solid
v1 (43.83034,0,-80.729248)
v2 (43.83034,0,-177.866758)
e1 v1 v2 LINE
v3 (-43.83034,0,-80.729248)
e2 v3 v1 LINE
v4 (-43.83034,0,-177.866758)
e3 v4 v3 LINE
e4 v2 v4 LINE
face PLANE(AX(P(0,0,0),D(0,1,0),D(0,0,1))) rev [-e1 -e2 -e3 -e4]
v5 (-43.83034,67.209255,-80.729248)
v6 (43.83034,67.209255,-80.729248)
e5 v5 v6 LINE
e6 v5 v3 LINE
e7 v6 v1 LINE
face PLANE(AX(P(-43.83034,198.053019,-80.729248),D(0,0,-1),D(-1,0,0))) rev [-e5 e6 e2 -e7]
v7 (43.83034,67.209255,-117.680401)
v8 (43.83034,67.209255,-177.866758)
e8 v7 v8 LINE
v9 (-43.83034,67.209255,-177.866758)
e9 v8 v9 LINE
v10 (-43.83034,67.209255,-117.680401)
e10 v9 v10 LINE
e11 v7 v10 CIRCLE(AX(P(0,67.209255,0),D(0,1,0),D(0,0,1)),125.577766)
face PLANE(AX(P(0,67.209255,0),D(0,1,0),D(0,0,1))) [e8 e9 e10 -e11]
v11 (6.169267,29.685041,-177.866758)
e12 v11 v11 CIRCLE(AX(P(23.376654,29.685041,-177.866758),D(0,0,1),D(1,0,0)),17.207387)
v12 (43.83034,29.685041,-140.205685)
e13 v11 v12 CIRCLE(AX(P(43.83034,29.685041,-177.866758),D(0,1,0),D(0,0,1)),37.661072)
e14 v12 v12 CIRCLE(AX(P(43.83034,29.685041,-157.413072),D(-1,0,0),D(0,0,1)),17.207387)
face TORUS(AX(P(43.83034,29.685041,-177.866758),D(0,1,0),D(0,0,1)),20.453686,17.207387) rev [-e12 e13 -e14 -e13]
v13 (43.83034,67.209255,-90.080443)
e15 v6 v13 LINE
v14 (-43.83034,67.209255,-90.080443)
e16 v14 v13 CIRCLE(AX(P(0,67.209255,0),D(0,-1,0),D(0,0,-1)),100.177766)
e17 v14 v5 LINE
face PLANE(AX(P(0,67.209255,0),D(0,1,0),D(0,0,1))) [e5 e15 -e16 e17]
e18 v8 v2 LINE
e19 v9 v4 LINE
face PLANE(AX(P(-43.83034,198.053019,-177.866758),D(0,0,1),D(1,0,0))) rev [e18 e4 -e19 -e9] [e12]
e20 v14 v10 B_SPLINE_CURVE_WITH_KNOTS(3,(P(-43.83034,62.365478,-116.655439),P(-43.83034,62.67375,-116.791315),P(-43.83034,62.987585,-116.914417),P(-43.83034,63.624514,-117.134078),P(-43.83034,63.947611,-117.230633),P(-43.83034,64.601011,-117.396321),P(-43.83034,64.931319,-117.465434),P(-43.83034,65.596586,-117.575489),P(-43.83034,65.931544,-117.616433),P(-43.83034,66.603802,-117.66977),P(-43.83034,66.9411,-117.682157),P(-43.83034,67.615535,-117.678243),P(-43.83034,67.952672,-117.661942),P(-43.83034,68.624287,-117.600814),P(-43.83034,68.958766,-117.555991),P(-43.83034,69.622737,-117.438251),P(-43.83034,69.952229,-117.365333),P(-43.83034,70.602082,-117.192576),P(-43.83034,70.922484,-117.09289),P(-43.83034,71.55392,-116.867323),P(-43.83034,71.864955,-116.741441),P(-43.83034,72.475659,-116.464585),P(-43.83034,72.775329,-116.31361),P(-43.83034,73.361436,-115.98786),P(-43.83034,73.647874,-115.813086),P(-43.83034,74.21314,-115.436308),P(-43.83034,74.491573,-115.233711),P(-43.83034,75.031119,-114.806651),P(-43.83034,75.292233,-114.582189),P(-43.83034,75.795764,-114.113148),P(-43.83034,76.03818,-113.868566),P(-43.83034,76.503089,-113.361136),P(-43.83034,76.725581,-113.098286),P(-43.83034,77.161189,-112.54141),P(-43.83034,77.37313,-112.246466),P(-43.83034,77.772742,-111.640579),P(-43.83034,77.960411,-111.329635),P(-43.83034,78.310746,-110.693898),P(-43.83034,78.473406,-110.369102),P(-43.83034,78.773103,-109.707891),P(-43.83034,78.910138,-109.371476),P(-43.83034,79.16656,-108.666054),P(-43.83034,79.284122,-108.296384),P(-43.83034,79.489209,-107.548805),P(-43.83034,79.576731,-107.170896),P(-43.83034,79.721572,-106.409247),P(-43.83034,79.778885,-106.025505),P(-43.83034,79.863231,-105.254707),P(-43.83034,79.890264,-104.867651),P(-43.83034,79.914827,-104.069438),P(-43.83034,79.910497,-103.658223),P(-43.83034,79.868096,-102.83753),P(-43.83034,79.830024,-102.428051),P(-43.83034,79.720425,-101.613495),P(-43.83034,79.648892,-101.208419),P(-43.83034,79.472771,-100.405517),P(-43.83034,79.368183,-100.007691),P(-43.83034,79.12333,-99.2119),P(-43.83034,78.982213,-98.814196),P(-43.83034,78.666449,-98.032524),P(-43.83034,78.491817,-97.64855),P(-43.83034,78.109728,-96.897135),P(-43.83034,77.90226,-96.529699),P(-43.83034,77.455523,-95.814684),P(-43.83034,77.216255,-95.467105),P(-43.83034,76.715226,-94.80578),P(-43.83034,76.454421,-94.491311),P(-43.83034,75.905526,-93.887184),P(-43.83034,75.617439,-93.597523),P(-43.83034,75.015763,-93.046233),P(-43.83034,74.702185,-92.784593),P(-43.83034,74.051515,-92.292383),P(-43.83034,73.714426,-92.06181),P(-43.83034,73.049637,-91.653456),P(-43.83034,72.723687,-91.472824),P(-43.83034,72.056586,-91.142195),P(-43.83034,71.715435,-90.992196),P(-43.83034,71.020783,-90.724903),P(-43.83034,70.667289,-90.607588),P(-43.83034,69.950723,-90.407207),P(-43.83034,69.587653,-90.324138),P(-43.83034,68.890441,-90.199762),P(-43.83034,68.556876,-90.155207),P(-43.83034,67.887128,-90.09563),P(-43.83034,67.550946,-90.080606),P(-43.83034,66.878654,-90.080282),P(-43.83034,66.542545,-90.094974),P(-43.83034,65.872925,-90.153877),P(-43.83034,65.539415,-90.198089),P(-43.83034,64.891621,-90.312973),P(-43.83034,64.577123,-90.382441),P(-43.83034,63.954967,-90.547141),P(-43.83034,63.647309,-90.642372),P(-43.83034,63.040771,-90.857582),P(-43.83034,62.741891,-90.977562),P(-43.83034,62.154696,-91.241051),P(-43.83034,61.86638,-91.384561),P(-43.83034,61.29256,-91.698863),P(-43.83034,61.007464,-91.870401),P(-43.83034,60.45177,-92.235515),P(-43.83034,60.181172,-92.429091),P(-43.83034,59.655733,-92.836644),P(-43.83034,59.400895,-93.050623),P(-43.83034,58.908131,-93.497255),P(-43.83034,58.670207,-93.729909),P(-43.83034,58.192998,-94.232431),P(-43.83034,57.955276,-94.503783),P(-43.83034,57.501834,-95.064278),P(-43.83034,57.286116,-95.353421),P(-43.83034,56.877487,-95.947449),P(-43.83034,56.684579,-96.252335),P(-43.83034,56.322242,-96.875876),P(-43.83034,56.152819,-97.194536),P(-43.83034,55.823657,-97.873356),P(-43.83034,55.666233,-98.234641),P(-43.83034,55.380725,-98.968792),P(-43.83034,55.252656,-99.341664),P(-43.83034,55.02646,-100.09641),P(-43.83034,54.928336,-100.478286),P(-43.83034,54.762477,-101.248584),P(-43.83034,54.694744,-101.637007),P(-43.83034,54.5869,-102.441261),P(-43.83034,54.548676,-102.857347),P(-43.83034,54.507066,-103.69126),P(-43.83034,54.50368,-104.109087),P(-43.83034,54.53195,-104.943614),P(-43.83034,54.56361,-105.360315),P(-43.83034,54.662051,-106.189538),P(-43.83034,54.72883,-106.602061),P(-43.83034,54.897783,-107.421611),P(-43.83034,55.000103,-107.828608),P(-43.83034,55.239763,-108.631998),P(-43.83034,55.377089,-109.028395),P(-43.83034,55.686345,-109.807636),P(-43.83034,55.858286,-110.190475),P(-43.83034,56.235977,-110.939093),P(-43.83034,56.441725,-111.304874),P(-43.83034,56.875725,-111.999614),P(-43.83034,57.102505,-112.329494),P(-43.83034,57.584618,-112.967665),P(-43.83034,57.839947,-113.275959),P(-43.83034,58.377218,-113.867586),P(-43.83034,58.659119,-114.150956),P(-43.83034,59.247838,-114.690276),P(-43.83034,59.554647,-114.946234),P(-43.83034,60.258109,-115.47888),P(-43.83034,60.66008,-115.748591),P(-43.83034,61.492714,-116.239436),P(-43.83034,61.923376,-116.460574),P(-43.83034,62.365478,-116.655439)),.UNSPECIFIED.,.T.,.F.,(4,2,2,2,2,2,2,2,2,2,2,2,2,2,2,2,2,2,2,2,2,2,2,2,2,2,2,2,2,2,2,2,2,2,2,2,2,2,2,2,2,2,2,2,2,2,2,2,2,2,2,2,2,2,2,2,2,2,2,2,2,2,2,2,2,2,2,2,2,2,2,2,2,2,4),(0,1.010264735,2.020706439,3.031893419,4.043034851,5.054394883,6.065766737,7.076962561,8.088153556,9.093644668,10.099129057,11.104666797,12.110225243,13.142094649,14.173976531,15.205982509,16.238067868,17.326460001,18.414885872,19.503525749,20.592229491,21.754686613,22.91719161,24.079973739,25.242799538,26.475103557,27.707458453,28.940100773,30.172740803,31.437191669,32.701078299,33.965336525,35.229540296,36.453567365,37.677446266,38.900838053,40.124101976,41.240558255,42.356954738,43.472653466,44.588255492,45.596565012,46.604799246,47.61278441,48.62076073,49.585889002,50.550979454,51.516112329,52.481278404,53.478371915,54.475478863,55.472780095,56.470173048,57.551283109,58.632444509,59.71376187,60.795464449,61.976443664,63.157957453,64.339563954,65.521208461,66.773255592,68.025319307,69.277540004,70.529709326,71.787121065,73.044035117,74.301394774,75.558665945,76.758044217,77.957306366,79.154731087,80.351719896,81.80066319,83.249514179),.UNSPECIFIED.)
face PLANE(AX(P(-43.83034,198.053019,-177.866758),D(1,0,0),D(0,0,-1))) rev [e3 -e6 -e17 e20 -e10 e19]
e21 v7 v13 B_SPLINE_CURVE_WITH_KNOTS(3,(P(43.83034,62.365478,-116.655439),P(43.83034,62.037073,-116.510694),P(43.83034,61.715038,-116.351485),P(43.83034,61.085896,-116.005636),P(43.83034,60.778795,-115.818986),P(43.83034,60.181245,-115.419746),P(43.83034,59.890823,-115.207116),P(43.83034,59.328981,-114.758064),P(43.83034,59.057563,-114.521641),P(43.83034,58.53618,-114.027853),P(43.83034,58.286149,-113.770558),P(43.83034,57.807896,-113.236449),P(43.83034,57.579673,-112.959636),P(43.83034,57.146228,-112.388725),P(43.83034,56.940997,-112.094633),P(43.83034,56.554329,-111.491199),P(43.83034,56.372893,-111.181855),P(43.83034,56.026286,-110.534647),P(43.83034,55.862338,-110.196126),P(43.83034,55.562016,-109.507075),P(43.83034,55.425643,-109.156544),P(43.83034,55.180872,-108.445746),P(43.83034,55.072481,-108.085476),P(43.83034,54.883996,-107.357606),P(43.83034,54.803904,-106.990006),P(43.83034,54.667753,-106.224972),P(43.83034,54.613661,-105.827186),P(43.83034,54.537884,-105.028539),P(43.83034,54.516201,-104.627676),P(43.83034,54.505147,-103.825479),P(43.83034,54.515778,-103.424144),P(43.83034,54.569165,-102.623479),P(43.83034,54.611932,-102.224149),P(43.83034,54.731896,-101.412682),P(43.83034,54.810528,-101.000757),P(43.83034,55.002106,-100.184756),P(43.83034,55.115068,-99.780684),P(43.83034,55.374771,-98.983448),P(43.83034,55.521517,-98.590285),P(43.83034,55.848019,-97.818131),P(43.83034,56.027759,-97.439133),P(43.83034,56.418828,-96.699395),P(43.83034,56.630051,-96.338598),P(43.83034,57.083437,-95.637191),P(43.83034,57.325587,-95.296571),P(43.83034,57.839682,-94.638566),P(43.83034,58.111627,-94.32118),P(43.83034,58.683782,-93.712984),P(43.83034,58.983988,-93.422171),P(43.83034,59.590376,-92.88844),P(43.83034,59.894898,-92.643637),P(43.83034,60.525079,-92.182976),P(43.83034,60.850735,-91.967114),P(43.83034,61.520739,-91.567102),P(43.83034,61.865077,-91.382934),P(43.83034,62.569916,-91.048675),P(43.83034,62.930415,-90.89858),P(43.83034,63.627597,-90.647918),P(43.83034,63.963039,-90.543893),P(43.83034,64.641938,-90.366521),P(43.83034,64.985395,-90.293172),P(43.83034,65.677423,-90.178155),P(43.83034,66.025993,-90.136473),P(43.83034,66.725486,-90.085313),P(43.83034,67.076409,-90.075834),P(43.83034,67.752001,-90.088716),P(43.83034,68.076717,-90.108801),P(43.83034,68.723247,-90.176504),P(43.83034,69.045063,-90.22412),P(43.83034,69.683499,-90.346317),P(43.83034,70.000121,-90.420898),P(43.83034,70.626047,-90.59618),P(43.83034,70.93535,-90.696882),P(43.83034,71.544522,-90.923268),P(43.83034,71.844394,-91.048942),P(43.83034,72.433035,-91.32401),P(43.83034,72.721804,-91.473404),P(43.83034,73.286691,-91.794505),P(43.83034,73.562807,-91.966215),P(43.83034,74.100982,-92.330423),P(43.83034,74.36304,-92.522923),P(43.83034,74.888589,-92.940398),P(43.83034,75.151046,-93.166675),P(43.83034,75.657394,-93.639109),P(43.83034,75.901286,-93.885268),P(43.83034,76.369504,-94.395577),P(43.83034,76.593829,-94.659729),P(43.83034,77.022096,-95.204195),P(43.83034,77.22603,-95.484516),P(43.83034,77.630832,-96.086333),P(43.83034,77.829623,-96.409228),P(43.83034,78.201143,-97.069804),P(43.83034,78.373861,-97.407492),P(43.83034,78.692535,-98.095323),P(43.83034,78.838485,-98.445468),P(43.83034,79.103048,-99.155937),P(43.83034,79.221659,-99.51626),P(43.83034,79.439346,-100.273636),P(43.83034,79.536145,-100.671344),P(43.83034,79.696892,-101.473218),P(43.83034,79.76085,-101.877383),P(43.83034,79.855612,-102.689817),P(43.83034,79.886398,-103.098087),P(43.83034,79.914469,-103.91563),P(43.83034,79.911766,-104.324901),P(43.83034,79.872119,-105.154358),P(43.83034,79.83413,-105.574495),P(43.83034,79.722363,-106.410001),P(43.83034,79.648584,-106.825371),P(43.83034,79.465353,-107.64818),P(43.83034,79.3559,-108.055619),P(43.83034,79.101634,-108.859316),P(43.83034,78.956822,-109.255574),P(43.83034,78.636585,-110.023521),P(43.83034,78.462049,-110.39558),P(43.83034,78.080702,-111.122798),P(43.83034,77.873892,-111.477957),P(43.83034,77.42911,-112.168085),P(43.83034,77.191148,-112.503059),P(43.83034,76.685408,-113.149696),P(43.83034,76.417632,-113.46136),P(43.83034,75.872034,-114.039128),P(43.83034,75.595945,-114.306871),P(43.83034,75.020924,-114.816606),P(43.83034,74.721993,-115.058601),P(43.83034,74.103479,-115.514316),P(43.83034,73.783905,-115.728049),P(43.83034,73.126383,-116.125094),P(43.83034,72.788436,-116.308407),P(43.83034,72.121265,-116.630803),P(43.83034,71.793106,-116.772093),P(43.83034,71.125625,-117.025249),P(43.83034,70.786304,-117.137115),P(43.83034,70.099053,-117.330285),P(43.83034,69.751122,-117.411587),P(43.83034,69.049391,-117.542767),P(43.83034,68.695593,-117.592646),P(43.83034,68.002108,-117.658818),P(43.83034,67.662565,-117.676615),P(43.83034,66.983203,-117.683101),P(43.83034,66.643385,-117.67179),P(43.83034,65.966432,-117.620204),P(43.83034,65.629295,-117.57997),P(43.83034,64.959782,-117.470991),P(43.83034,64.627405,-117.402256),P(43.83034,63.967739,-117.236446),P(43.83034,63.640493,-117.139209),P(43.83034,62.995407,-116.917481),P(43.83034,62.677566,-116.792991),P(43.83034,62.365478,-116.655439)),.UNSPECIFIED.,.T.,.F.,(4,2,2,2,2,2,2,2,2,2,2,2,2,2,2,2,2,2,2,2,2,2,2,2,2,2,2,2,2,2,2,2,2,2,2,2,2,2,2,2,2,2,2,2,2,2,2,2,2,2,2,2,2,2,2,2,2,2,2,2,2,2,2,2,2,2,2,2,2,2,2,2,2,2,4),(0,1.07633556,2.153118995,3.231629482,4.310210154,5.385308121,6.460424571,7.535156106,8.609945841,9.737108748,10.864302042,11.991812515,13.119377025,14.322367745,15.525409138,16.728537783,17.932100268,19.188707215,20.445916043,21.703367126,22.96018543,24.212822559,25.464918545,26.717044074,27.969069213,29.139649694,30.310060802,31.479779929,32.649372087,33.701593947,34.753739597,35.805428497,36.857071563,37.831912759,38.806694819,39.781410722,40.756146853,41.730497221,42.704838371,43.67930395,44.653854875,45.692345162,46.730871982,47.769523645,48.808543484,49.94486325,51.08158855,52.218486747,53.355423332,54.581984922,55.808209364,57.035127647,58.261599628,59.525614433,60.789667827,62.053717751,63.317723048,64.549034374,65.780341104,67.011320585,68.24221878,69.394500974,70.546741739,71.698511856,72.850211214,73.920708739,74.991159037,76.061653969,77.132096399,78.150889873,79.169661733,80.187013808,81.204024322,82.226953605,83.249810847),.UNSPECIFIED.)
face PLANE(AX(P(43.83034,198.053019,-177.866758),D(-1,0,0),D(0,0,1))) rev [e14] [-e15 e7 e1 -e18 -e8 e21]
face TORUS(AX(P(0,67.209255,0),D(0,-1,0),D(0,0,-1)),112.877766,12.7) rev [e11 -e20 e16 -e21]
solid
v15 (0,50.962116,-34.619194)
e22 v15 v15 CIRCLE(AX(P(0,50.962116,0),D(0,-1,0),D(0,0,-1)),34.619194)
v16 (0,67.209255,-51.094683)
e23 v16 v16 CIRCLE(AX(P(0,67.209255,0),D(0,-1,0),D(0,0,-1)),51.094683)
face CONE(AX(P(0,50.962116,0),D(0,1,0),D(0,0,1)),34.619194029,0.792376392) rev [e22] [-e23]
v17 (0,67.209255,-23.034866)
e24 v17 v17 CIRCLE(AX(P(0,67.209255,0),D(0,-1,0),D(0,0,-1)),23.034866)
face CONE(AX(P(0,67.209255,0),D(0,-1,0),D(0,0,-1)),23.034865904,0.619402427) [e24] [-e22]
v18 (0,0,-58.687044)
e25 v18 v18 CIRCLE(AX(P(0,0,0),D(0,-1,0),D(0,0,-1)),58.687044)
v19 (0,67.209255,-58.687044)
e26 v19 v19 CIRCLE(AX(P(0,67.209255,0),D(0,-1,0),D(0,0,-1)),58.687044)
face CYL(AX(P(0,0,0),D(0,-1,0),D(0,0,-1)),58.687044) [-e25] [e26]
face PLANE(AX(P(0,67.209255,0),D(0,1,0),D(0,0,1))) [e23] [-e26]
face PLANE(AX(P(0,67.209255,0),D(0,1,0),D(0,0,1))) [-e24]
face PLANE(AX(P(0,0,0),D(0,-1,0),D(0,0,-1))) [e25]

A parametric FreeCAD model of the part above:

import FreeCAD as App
import Part
import Sketcher
from FreeCAD import Vector
Q = App.Units.Quantity


def add_polygon(sketch, points):
    """Adds a closed chain of lines whose ends are joined by coincident constraints."""
    first, n = sketch.GeometryCount, len(points)
    for a, b in zip(points, points[1:] + points[:1]):
        sketch.addGeometry(Part.LineSegment(App.Vector(*a, 0), App.Vector(*b, 0)), False)
    for i in range(n):
        sketch.addConstraint(Sketcher.Constraint("Coincident", first + i, 2, first + (i + 1) % n, 1))

doc = App.newDocument("Part")
body = doc.addObject("PartDesign::Body", "Body")

# Sketch on XY plane
sketch1 = body.newObject("Sketcher::SketchObject", "Sketch")
sketch1.AttachmentSupport = (doc.getObject("XY_Plane"), [""])
sketch1.MapMode = "FlatFace"
add_polygon(sketch1, [(0, 67.209255), (0, 0), (58.687044, 0), (58.687044, 67.209255)])  # lines 0-3
sketch1.addConstraint(Sketcher.Constraint("Vertical", 0))
sketch1.addConstraint(Sketcher.Constraint("Horizontal", 1))
sketch1.addConstraint(Sketcher.Constraint("Vertical", 2))
sketch1.addConstraint(Sketcher.Constraint("Horizontal", 3))
sketch1.addConstraint(Sketcher.Constraint("Coincident", 0, 2, -1, 1))
sketch1.addConstraint(Sketcher.Constraint("DistanceX", 1, 1, 1, 2, 58.687044))
sketch1.addConstraint(Sketcher.Constraint("DistanceY", 0, 2, 0, 1, 67.209255))
revolution = body.newObject("PartDesign::Revolution", "Revolution")
revolution.Profile = sketch1
revolution.ReferenceAxis = (sketch1, ["V_Axis"])
revolution.Angle = 360
body2 = doc.addObject("PartDesign::Body", "Body001")

# Sketch on XZ plane
sketch2 = body2.newObject("Sketcher::SketchObject", "Sketch001")
sketch2.AttachmentSupport = (doc.getObject("XZ_Plane001"), [""])
sketch2.MapMode = "FlatFace"
add_polygon(sketch2, [(-43.83034, -177.866758), (-43.83034, -80.729248), (43.83034, -80.729248), (43.83034, -177.866758)])  # lines 0-3
sketch2.addConstraint(Sketcher.Constraint("Vertical", 0))
sketch2.addConstraint(Sketcher.Constraint("Horizontal", 1))
sketch2.addConstraint(Sketcher.Constraint("Vertical", 2))
sketch2.addConstraint(Sketcher.Constraint("Horizontal", 3))
sketch2.addConstraint(Sketcher.Constraint("DistanceX", 1, 1, 1, 2, 87.660679))
sketch2.addConstraint(Sketcher.Constraint("DistanceY", 0, 1, 0, 2, 97.13751))
sketch2.addConstraint(Sketcher.Constraint("DistanceX", 0, 2, -1, 1, 43.83034))
sketch2.addConstraint(Sketcher.Constraint("DistanceY", 0, 2, -1, 1, 80.729248))
pad1 = body2.newObject("PartDesign::Pad", "Pad")
pad1.Profile = sketch2
pad1.Length = 67.209255
pad1.Reversed = True
body3 = doc.addObject("PartDesign::Body", "Body002")
body3.AllowCompound = True

# Sketch on YZ plane
sketch3 = body3.newObject("Sketcher::SketchObject", "Sketch002")
sketch3.AttachmentSupport = (doc.getObject("YZ_Plane002"), [""])
sketch3.MapMode = "FlatFace"
sketch3.addGeometry(Part.Circle(Vector(67.209255, -112.877766, 0), Vector(0, 0, 1), 12.7), False)  # 0
add_polygon(sketch3, [(67.209255, -23.034866), (50.962116, -34.619194), (67.209255, -51.094683)])  # lines 1-3
sketch3.addConstraint(Sketcher.Constraint("Vertical", 3))
sketch3.addConstraint(Sketcher.Constraint("Vertical", 0, 3, 2, 2))
sketch3.addConstraint(Sketcher.Constraint("Diameter", 0, Q("1 in")))
sketch3.addConstraint(Sketcher.Constraint("DistanceY", 0, 3, 3, 2, 89.8429))
sketch3.addConstraint(Sketcher.Constraint("DistanceY", 3, 1, 3, 2, 28.059817))
sketch3.addConstraint(Sketcher.Constraint("DistanceX", 1, 2, 0, 3, 16.247139))
sketch3.addConstraint(Sketcher.Constraint("DistanceY", 2, 2, 1, 2, 16.475489))
sketch3.addConstraint(Sketcher.Constraint("DistanceX", -1, 1, 0, 3, 67.209255))
sketch3.addConstraint(Sketcher.Constraint("DistanceY", 0, 3, -1, 1, 112.877766))
revolution2 = body3.newObject("PartDesign::Revolution", "Revolution001")
revolution2.Profile = sketch3
revolution2.ReferenceAxis = (sketch3, ["H_Axis"])
revolution2.Angle = 360
doc.recompute()

body4 = doc.addObject("PartDesign::Body", "Body003")
body4.BaseFeature = body3
boolean = body.newObject("PartDesign::Boolean", "Boolean")
boolean.Type = "Cut"
boolean.addObjects([body4])
doc.recompute()

boolean2 = body2.newObject("PartDesign::Boolean", "Boolean001")
boolean2.Type = "Cut"
boolean2.addObjects([body3])

# Sketch on YZ plane
sketch4 = body2.newObject("Sketcher::SketchObject", "Sketch003")
sketch4.AttachmentSupport = (doc.getObject("YZ_Plane001"), [""])
sketch4.MapMode = "FlatFace"
sketch4.AttachmentOffset = App.Placement(Vector(0, 0, 43.83034), App.Rotation())
sketch4.addGeometry(Part.Circle(Vector(29.685041, -157.413072, 0), Vector(0, 0, 1), 17.207387), False)
sketch4.addGeometry(Part.LineSegment(Vector(29.685041, -177.866758, 0), Vector(19.685041, -177.866758, 0)), True)  # axis
sketch4.addConstraint(Sketcher.Constraint("Horizontal", 1))
sketch4.addConstraint(Sketcher.Constraint("Vertical", 0, 3, 1, 1))
sketch4.addConstraint(Sketcher.Constraint("Diameter", 0, 34.414773))
sketch4.addConstraint(Sketcher.Constraint("DistanceX", 1, 2, 1, 1, 10.0))
sketch4.addConstraint(Sketcher.Constraint("DistanceX", -1, 1, 0, 3, 29.685041))
sketch4.addConstraint(Sketcher.Constraint("DistanceY", 0, 3, -1, 1, 157.413072))
sketch4.addConstraint(Sketcher.Constraint("DistanceY", 1, 1, -1, 1, 177.866758))
groove = body2.newObject("PartDesign::Groove", "Groove")
groove.Profile = sketch4
groove.ReferenceAxis = (sketch4, ["Axis0"])
groove.Angle = 360

doc.recompute()
